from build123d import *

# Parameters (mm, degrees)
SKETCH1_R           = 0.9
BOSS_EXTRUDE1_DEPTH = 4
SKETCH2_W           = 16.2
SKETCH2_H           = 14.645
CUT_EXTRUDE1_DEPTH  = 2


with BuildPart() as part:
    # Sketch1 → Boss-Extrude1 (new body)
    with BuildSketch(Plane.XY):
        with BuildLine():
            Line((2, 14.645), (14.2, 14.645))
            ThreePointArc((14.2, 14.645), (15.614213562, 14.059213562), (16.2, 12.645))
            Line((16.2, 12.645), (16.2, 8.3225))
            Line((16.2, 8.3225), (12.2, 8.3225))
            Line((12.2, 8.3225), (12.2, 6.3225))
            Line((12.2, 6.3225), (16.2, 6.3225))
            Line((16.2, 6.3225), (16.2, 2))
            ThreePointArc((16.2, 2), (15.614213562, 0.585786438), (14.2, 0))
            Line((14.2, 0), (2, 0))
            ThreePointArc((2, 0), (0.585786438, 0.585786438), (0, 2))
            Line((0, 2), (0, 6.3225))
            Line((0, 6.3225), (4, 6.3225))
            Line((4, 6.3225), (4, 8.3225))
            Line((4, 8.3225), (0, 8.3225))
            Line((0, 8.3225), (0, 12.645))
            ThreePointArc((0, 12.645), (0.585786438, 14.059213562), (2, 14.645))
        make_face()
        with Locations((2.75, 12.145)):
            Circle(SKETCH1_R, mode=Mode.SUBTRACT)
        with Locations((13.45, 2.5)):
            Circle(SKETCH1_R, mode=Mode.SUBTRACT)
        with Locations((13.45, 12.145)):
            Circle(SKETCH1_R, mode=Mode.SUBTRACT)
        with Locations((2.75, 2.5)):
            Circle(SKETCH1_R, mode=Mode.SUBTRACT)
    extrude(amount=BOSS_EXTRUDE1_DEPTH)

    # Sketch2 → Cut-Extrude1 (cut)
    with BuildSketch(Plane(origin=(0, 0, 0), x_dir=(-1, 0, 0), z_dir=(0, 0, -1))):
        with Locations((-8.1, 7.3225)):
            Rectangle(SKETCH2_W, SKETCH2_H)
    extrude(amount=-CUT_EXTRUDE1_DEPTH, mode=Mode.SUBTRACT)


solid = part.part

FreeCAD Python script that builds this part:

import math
import FreeCAD as App
import Part
import Sketcher
from FreeCAD import Vector
Q = App.Units.Quantity

doc = App.newDocument("Part")
params = doc.addObject("Spreadsheet::Sheet", "Params")
for row, (alias, value) in enumerate([
    ("sketch1_radius", "2 mm"),
    ("sketch1_diameter", "1.8 mm"),
    ("sketch1_width", "4 mm"),
    ("sketch1_height", "2 mm"),
    ("sketch1_width2", "12.2 mm"),
    ("pad1_length", "4 mm"),
    ("sketch2_width", "16.2 mm"),
    ("pocket1_length", "2 mm"),
], start=1):
    params.set(f"A{row}", alias)
    params.set(f"B{row}", "=" + value)
    params.setAlias(f"B{row}", alias)

body = doc.addObject("PartDesign::Body", "Body")

# Sketch on XY plane
sketch1 = doc.addObject("Sketcher::SketchObject", "Sketch")
body.addObject(sketch1)
sketch1.AttachmentSupport = (doc.XY_Plane, [""])
sketch1.MapMode = "FlatFace"
sketch1.addGeometry(Part.LineSegment(Vector(14.2, 14.6, 0), Vector(2, 14.6, 0)), False)
sketch1.addGeometry(Part.ArcOfCircle(Part.Circle(Vector(2, 12.6, 0), Vector(0, 0, 1), 2), math.radians(90), math.radians(180)), False)
sketch1.addGeometry(Part.LineSegment(Vector(0, 12.6, 0), Vector(0, 8.3, 0)), False)
sketch1.addGeometry(Part.LineSegment(Vector(0, 8.3, 0), Vector(4, 8.3, 0)), False)
sketch1.addGeometry(Part.LineSegment(Vector(4, 8.3, 0), Vector(4, 6.3, 0)), False)
sketch1.addGeometry(Part.LineSegment(Vector(4, 6.3, 0), Vector(0, 6.3, 0)), False)
sketch1.addGeometry(Part.LineSegment(Vector(0, 6.3, 0), Vector(0, 2, 0)), False)
sketch1.addGeometry(Part.ArcOfCircle(Part.Circle(Vector(2, 2, 0), Vector(0, 0, 1), 2), math.radians(-180), math.radians(-90)), False)
sketch1.addGeometry(Part.LineSegment(Vector(2, 0, 0), Vector(14.2, 0, 0)), False)
sketch1.addGeometry(Part.ArcOfCircle(Part.Circle(Vector(14.2, 2, 0), Vector(0, 0, 1), 2), math.radians(-90), math.radians(0)), False)
sketch1.addGeometry(Part.LineSegment(Vector(16.2, 2, 0), Vector(16.2, 6.3, 0)), False)
sketch1.addGeometry(Part.LineSegment(Vector(16.2, 6.3, 0), Vector(12.2, 6.3, 0)), False)
sketch1.addGeometry(Part.LineSegment(Vector(12.2, 6.3, 0), Vector(12.2, 8.3, 0)), False)
sketch1.addGeometry(Part.LineSegment(Vector(12.2, 8.3, 0), Vector(16.2, 8.3, 0)), False)
sketch1.addGeometry(Part.LineSegment(Vector(16.2, 8.3, 0), Vector(16.2, 12.6, 0)), False)
sketch1.addGeometry(Part.ArcOfCircle(Part.Circle(Vector(14.2, 12.6, 0), Vector(0, 0, 1), 2), math.radians(0), math.radians(90)), False)
sketch1.addGeometry(Part.Circle(Vector(13.4, 2.5, 0), Vector(0, 0, 1), 0.9), False)
sketch1.addGeometry(Part.Circle(Vector(2.8, 2.5, 0), Vector(0, 0, 1), 0.9), False)
sketch1.addGeometry(Part.Circle(Vector(13.4, 12.1, 0), Vector(0, 0, 1), 0.9), False)
sketch1.addGeometry(Part.Circle(Vector(2.8, 12.1, 0), Vector(0, 0, 1), 0.9), False)
sketch1.addConstraint(Sketcher.Constraint("Tangent", 0, 2, 1, 1))
sketch1.addConstraint(Sketcher.Constraint("Tangent", 1, 2, 2, 1))
sketch1.addConstraint(Sketcher.Constraint("Coincident", 2, 2, 3, 1))
sketch1.addConstraint(Sketcher.Constraint("Coincident", 3, 2, 4, 1))
sketch1.addConstraint(Sketcher.Constraint("Coincident", 4, 2, 5, 1))
sketch1.addConstraint(Sketcher.Constraint("Coincident", 5, 2, 6, 1))
sketch1.addConstraint(Sketcher.Constraint("Tangent", 6, 2, 7, 1))
sketch1.addConstraint(Sketcher.Constraint("Tangent", 7, 2, 8, 1))
sketch1.addConstraint(Sketcher.Constraint("Tangent", 8, 2, 9, 1))
sketch1.addConstraint(Sketcher.Constraint("Tangent", 9, 2, 10, 1))
sketch1.addConstraint(Sketcher.Constraint("Coincident", 10, 2, 11, 1))
sketch1.addConstraint(Sketcher.Constraint("Coincident", 11, 2, 12, 1))
sketch1.addConstraint(Sketcher.Constraint("Coincident", 12, 2, 13, 1))
sketch1.addConstraint(Sketcher.Constraint("Coincident", 13, 2, 14, 1))
sketch1.addConstraint(Sketcher.Constraint("Tangent", 14, 2, 15, 1))
sketch1.addConstraint(Sketcher.Constraint("Tangent", 15, 2, 0, 1))
sketch1.addConstraint(Sketcher.Constraint("Horizontal", 0))
sketch1.addConstraint(Sketcher.Constraint("Vertical", 2))
sketch1.addConstraint(Sketcher.Constraint("Horizontal", 3))
sketch1.addConstraint(Sketcher.Constraint("Vertical", 4))
sketch1.addConstraint(Sketcher.Constraint("Horizontal", 5))
sketch1.addConstraint(Sketcher.Constraint("Vertical", 6))
sketch1.addConstraint(Sketcher.Constraint("Horizontal", 8))
sketch1.addConstraint(Sketcher.Constraint("Vertical", 10))
sketch1.addConstraint(Sketcher.Constraint("Horizontal", 11))
sketch1.addConstraint(Sketcher.Constraint("Vertical", 12))
sketch1.addConstraint(Sketcher.Constraint("Horizontal", 13))
sketch1.addConstraint(Sketcher.Constraint("Vertical", 14))
sketch1.addConstraint(Sketcher.Constraint("Equal", 1, 7))
sketch1.addConstraint(Sketcher.Constraint("Equal", 7, 9))
sketch1.addConstraint(Sketcher.Constraint("Equal", 9, 15))
sketch1.addConstraint(Sketcher.Constraint("Equal", 16, 17))
sketch1.addConstraint(Sketcher.Constraint("Equal", 17, 18))
sketch1.addConstraint(Sketcher.Constraint("Equal", 18, 19))
sketch1.addConstraint(Sketcher.Constraint("PointOnObject", 1, 2, -2))
sketch1.addConstraint(Sketcher.Constraint("PointOnObject", 5, 2, -2))
sketch1.addConstraint(Sketcher.Constraint("PointOnObject", 7, 2, -1))
sketch1.addConstraint(Sketcher.Constraint("Horizontal", 16, 3, 17, 3))
sketch1.addConstraint(Sketcher.Constraint("Horizontal", 18, 3, 19, 3))
sketch1.addConstraint(Sketcher.Constraint("Horizontal", 5, 2, 10, 2))
sketch1.addConstraint(Sketcher.Constraint("Horizontal", 3, 2, 12, 2))
sketch1.addConstraint(Sketcher.Constraint("Vertical", 9, 3, 15, 3))
sketch1.addConstraint(Sketcher.Constraint("Vertical", 16, 3, 18, 3))
sketch1.addConstraint(Sketcher.Constraint("Vertical", 17, 3, 19, 3))
sketch1.addConstraint(Sketcher.Constraint("Equal", 5, 11))
sketch1.addConstraint(Sketcher.Constraint("Equal", 2, 6))
sketch1.addConstraint(Sketcher.Constraint("Radius", 1, Q("2 mm")))
sketch1.addConstraint(Sketcher.Constraint("Diameter", 16, Q("1.8 mm")))
sketch1.addConstraint(Sketcher.Constraint("DistanceX", 3, 1, 3, 2, Q("4 mm")))
sketch1.addConstraint(Sketcher.Constraint("DistanceY", 4, 2, 4, 1, Q("2 mm")))
sketch1.addConstraint(Sketcher.Constraint("DistanceX", 0, 2, 0, 1, Q("12.2 mm")))
sketch1.addConstraint(Sketcher.Constraint("DistanceY", -1, 1, 16, 3, Q("2.5 mm")))
sketch1.addConstraint(Sketcher.Constraint("DistanceX", 17, 3, 16, 3, Q("10.7 mm")))
sketch1.addConstraint(Sketcher.Constraint("DistanceY", 18, 3, 15, 3, Q("0.5 mm")))
sketch1.addConstraint(Sketcher.Constraint("DistanceX", -1, 1, 16, 3, Q("13.45 mm")))
sketch1.addConstraint(Sketcher.Constraint("DistanceY", 2, 2, 2, 1, Q("4.3225 mm")))
sketch1.setExpression("Constraints[46]", "Params.sketch1_radius")
sketch1.setExpression("Constraints[47]", "Params.sketch1_diameter")
sketch1.setExpression("Constraints[48]", "Params.sketch1_width")
sketch1.setExpression("Constraints[49]", "Params.sketch1_height")
sketch1.setExpression("Constraints[50]", "Params.sketch1_width2")
pad1 = doc.addObject("PartDesign::Pad", "Pad")
body.addObject(pad1)
pad1.Profile = sketch1
pad1.setExpression("Length", "Params.pad1_length")

# Sketch on XY plane
sketch2 = doc.addObject("Sketcher::SketchObject", "Sketch001")
body.addObject(sketch2)
sketch2.AttachmentSupport = (doc.XY_Plane, [""])
sketch2.MapMode = "FlatFace"
sketch2.addGeometry(Part.LineSegment(Vector(16, 15, 0), Vector(16, 0, 0)), False)
sketch2.addGeometry(Part.LineSegment(Vector(16, 0, 0), Vector(0, 0, 0)), False)
sketch2.addGeometry(Part.LineSegment(Vector(0, 0, 0), Vector(0, 15, 0)), False)
sketch2.addGeometry(Part.LineSegment(Vector(0, 15, 0), Vector(16, 15, 0)), False)
sketch2.addConstraint(Sketcher.Constraint("Coincident", 0, 2, 1, 1))
sketch2.addConstraint(Sketcher.Constraint("Coincident", 1, 2, 2, 1))
sketch2.addConstraint(Sketcher.Constraint("Coincident", 2, 2, 3, 1))
sketch2.addConstraint(Sketcher.Constraint("Coincident", 3, 2, 0, 1))
sketch2.addConstraint(Sketcher.Constraint("Vertical", 0))
sketch2.addConstraint(Sketcher.Constraint("Horizontal", 1))
sketch2.addConstraint(Sketcher.Constraint("Vertical", 2))
sketch2.addConstraint(Sketcher.Constraint("Horizontal", 3))
sketch2.addConstraint(Sketcher.Constraint("Coincident", 1, 2, -1, 1))
sketch2.addConstraint(Sketcher.Constraint("DistanceX", 1, 2, 1, 1, Q("16.2 mm")))
sketch2.addConstraint(Sketcher.Constraint("DistanceY", 0, 2, 0, 1, Q("14.645 mm")))
sketch2.setExpression("Constraints[9]", "Params.sketch2_width")
pocket1 = doc.addObject("PartDesign::Pocket", "Pocket")
body.addObject(pocket1)
pocket1.Profile = sketch2
pocket1.setExpression("Length", "Params.pocket1_length")
pocket1.Reversed = True

doc.recompute()
